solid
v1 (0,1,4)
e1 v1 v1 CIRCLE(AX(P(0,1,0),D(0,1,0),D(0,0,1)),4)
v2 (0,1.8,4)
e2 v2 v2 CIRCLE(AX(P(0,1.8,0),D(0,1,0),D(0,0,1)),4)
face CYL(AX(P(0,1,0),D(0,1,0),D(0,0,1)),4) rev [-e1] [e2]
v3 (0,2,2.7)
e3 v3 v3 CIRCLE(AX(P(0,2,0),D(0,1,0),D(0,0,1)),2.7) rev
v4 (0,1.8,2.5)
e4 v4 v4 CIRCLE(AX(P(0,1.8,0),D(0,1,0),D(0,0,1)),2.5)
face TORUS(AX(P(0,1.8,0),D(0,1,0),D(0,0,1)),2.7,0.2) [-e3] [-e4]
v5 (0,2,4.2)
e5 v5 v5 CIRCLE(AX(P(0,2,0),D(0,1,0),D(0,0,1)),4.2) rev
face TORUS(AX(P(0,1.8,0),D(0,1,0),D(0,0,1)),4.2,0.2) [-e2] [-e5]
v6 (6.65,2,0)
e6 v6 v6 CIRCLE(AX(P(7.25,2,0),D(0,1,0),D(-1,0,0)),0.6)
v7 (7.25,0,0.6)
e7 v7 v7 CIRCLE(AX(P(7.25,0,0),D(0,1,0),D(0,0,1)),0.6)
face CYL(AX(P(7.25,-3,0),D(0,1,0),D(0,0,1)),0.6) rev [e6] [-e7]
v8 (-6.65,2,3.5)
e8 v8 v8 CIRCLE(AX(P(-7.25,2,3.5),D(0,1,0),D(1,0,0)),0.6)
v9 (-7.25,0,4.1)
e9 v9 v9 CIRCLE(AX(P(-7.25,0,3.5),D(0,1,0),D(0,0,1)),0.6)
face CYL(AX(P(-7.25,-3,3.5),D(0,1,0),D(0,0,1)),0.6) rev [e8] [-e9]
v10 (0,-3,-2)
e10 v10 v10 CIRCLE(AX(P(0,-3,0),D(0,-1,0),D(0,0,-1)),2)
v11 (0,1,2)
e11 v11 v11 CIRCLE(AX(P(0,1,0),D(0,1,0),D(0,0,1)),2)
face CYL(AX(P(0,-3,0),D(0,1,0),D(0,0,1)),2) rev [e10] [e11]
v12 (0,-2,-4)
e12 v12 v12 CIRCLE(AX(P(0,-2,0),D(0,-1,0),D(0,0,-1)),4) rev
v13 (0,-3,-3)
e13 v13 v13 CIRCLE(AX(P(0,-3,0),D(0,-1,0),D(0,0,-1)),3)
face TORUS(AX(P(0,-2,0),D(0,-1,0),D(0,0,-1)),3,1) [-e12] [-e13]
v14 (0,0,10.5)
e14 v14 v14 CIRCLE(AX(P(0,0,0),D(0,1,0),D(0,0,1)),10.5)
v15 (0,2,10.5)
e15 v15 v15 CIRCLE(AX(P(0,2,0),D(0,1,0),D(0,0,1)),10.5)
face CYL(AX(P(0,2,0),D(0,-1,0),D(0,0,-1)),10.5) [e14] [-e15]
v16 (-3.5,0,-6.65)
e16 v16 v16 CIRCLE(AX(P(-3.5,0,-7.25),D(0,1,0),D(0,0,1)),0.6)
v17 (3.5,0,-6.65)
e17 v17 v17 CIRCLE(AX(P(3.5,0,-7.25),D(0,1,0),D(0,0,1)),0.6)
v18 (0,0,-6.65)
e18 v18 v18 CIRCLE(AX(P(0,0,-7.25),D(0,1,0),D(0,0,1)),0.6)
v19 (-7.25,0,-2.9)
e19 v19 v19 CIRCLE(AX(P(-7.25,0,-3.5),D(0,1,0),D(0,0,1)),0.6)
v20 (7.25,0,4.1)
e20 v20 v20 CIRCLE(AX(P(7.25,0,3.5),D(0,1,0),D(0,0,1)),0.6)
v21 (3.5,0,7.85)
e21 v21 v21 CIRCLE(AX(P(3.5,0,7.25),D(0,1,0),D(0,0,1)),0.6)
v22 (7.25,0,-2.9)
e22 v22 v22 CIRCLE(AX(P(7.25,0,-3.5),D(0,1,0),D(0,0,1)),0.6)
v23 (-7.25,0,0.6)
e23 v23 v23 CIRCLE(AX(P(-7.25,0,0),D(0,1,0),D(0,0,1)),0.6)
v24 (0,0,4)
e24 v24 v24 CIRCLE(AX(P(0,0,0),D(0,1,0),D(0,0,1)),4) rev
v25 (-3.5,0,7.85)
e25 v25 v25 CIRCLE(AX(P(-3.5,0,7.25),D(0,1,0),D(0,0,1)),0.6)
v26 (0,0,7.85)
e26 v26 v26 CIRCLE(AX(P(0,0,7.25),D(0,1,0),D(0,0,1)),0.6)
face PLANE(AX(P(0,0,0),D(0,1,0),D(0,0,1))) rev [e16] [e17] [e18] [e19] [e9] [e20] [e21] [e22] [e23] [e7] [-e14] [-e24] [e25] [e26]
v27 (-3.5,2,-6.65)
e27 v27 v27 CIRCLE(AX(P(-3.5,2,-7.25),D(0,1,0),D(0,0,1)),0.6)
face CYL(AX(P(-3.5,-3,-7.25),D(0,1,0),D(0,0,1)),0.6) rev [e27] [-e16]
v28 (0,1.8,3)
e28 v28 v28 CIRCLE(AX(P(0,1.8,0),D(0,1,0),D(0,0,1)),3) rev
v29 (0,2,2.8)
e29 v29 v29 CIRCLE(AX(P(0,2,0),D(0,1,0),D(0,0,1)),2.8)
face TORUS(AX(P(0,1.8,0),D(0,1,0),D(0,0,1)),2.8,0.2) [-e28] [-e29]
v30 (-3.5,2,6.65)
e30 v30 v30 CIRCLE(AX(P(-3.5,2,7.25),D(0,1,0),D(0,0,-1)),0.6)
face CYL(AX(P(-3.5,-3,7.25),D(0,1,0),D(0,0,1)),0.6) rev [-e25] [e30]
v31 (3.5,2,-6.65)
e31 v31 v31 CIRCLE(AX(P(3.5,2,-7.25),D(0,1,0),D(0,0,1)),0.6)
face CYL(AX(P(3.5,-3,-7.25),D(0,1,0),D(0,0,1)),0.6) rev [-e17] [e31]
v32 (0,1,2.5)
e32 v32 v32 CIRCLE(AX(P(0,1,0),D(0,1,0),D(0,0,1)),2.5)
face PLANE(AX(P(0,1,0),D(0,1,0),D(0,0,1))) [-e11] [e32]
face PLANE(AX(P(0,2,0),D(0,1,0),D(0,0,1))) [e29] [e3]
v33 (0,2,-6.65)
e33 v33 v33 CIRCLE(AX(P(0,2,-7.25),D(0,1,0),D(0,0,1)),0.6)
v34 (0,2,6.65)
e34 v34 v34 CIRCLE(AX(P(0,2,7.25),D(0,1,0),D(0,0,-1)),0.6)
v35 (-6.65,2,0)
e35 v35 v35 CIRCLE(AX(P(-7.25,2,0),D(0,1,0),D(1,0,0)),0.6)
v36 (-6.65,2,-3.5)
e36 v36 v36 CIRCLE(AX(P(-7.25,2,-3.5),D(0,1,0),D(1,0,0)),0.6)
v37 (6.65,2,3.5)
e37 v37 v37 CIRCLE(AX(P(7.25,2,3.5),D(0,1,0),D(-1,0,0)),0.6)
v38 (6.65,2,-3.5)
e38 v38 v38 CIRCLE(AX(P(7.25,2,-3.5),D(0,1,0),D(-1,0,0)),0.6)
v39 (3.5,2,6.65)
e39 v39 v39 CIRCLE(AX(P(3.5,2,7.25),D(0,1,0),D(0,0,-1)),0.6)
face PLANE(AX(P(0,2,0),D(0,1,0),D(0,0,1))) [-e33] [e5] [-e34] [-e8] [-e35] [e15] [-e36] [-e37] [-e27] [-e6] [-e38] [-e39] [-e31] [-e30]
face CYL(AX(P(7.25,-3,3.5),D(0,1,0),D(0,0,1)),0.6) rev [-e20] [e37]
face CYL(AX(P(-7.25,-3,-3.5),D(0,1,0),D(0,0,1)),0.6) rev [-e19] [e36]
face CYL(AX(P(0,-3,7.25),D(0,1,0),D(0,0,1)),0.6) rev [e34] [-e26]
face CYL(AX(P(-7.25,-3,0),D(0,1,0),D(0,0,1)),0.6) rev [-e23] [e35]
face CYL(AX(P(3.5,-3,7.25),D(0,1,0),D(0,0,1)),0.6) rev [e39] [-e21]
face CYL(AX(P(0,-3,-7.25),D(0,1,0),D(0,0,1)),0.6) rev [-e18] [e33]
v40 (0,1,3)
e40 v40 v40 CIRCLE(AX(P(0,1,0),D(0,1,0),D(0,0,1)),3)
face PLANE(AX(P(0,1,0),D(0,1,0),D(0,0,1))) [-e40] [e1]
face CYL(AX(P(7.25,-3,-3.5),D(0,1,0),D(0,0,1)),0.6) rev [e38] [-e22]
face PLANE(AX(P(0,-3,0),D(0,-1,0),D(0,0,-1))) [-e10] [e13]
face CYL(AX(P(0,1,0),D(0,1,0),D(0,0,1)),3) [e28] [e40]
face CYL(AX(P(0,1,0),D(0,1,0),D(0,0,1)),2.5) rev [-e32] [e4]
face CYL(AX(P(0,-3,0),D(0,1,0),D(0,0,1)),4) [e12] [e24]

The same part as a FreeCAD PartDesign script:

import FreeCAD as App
import Part
import Sketcher
from FreeCAD import Vector


def edges_at(feature, points):
    """Names of the edges that pass closest to the given points."""
    edges = feature.Shape.Edges
    near = lambda p: min(range(len(edges)), key=lambda i: edges[i].distToShape(Part.Vertex(*p))[0])
    return sorted({f"Edge{near(p) + 1}" for p in points})

doc = App.newDocument("Part")
body = doc.addObject("PartDesign::Body", "Body")

# Sketch on XZ plane
sketch1 = body.newObject("Sketcher::SketchObject", "Sketch")
sketch1.AttachmentSupport = (doc.getObject("XZ_Plane"), [""])
sketch1.MapMode = "FlatFace"
sketch1.addGeometry(Part.Circle(Vector(0, 0, 0), Vector(0, 0, 1), 10), False)
sketch1.addConstraint(Sketcher.Constraint("Coincident", 0, 3, -1, 1))
sketch1.addConstraint(Sketcher.Constraint("Diameter", 0, 21.0))
pad1 = body.newObject("PartDesign::Pad", "Pad")
pad1.Profile = sketch1
pad1.Length = 2
pad1.Reversed = True

# Sketch on XZ plane
sketch2 = body.newObject("Sketcher::SketchObject", "Sketch001")
sketch2.AttachmentSupport = (doc.getObject("XZ_Plane"), [""])
sketch2.MapMode = "FlatFace"
sketch2.addGeometry(Part.Circle(Vector(0, 0, 0), Vector(0, 0, 1), 4), False)
sketch2.addGeometry(Part.Circle(Vector(0, 0, 0), Vector(0, 0, 1), 2), False)
sketch2.addConstraint(Sketcher.Constraint("Coincident", 0, 3, -1, 1))
sketch2.addConstraint(Sketcher.Constraint("Coincident", 1, 3, -1, 1))
sketch2.addConstraint(Sketcher.Constraint("Diameter", 0, 8.0))
sketch2.addConstraint(Sketcher.Constraint("Diameter", 1, 4.0))
pad2 = body.newObject("PartDesign::Pad", "Pad001")
pad2.Profile = sketch2
pad2.Length = 3
doc.recompute()

fillet = body.newObject("PartDesign::Fillet", "Fillet")
fillet.Base = (pad2, edges_at(pad2, [(-4, -3, 0)]))
fillet.Radius = 1

# Sketch on XZ plane
sketch3 = body.newObject("Sketcher::SketchObject", "Sketch002")
sketch3.AttachmentSupport = (doc.getObject("XZ_Plane"), [""])
sketch3.MapMode = "FlatFace"
sketch3.AttachmentOffset = App.Placement(Vector(0, 0, -2), App.Rotation())
sketch3.addGeometry(Part.Circle(Vector(0, 0, 0), Vector(0, 0, 1), 4), False)
sketch3.addGeometry(Part.Circle(Vector(0, 0, 0), Vector(0, 0, 1), 3), False)
sketch3.addConstraint(Sketcher.Constraint("Coincident", 0, 3, -1, 1))
sketch3.addConstraint(Sketcher.Constraint("Coincident", 1, 3, -1, 1))
sketch3.addConstraint(Sketcher.Constraint("Diameter", 0, 8.0))
sketch3.addConstraint(Sketcher.Constraint("Diameter", 1, 6.0))
pocket1 = body.newObject("PartDesign::Pocket", "Pocket")
pocket1.Profile = sketch3
pocket1.Length = 1
pocket1.Reversed = True

# Sketch on XZ plane
sketch4 = body.newObject("Sketcher::SketchObject", "Sketch003")
sketch4.AttachmentSupport = (doc.getObject("XZ_Plane"), [""])
sketch4.MapMode = "FlatFace"
sketch4.AttachmentOffset = App.Placement(Vector(0, 0, -2), App.Rotation())
sketch4.addGeometry(Part.Circle(Vector(0, 0, 0), Vector(0, 0, 1), 2), False)
sketch4.addConstraint(Sketcher.Constraint("Coincident", 0, 3, -1, 1))
sketch4.addConstraint(Sketcher.Constraint("Diameter", 0, 4.0))
pocket2 = body.newObject("PartDesign::Pocket", "Pocket001")
pocket2.Profile = sketch4
pocket2.Length = 3
pocket2.Reversed = True

# Sketch on XZ plane
sketch5 = body.newObject("Sketcher::SketchObject", "Sketch004")
sketch5.AttachmentSupport = (doc.getObject("XZ_Plane"), [""])
sketch5.MapMode = "FlatFace"
sketch5.AttachmentOffset = App.Placement(Vector(0, 0, -2), App.Rotation())
sketch5.addGeometry(Part.Circle(Vector(0, 0, 0), Vector(0, 0, 1), 2.5), False)
sketch5.addConstraint(Sketcher.Constraint("Coincident", 0, 3, -1, 1))
sketch5.addConstraint(Sketcher.Constraint("Diameter", 0, 5.0))
pocket3 = body.newObject("PartDesign::Pocket", "Pocket002")
pocket3.Profile = sketch5
pocket3.Length = 1
pocket3.Reversed = True

# Sketch on XZ plane
sketch6 = body.newObject("Sketcher::SketchObject", "Sketch005")
sketch6.AttachmentSupport = (doc.getObject("XZ_Plane"), [""])
sketch6.MapMode = "FlatFace"
sketch6.AttachmentOffset = App.Placement(Vector(0, 0, -2), App.Rotation())
sketch6.addGeometry(Part.Circle(Vector(0, -7.2, 0), Vector(0, 0, 1), 0.6), False)
sketch6.addGeometry(Part.Circle(Vector(3.5, -7.2, 0), Vector(0, 0, 1), 0.6), False)
sketch6.addGeometry(Part.Circle(Vector(-3.5, -7.2, 0), Vector(0, 0, 1), 0.6), False)
sketch6.addConstraint(Sketcher.Constraint("Equal", 0, 1))
sketch6.addConstraint(Sketcher.Constraint("Equal", 1, 2))
sketch6.addConstraint(Sketcher.Constraint("Symmetric", 1, 3, 2, 3, -2))
sketch6.addConstraint(Sketcher.Constraint("PointOnObject", 0, 3, -2))
sketch6.addConstraint(Sketcher.Constraint("Horizontal", 0, 3, 1, 3))
sketch6.addConstraint(Sketcher.Constraint("Diameter", 0, 1.2))
sketch6.addConstraint(Sketcher.Constraint("DistanceX", 2, 3, 1, 3, 7.0))
sketch6.addConstraint(Sketcher.Constraint("DistanceY", 0, 3, -1, 1, 7.25))
pocket4 = body.newObject("PartDesign::Pocket", "Pocket003")
pocket4.Profile = sketch6
pocket4.Type = "ThroughAll"
pocket4.Reversed = True
doc.recompute()

polarpattern = body.newObject("PartDesign::PolarPattern", "PolarPattern")
polarpattern.Originals = [pocket4]
polarpattern.Axis = (doc.getObject("Y_Axis"), [""])
polarpattern.Angle = 360
polarpattern.Occurrences = 4
body.Tip = polarpattern
doc.recompute()

fillet2 = body.newObject("PartDesign::Fillet", "Fillet001")
fillet2.Base = (polarpattern, edges_at(polarpattern, [(-4, 2, 0), (-3, 2, 0), (-2.5, 2, 0)]))
fillet2.Radius = 0.2

doc.recompute()
